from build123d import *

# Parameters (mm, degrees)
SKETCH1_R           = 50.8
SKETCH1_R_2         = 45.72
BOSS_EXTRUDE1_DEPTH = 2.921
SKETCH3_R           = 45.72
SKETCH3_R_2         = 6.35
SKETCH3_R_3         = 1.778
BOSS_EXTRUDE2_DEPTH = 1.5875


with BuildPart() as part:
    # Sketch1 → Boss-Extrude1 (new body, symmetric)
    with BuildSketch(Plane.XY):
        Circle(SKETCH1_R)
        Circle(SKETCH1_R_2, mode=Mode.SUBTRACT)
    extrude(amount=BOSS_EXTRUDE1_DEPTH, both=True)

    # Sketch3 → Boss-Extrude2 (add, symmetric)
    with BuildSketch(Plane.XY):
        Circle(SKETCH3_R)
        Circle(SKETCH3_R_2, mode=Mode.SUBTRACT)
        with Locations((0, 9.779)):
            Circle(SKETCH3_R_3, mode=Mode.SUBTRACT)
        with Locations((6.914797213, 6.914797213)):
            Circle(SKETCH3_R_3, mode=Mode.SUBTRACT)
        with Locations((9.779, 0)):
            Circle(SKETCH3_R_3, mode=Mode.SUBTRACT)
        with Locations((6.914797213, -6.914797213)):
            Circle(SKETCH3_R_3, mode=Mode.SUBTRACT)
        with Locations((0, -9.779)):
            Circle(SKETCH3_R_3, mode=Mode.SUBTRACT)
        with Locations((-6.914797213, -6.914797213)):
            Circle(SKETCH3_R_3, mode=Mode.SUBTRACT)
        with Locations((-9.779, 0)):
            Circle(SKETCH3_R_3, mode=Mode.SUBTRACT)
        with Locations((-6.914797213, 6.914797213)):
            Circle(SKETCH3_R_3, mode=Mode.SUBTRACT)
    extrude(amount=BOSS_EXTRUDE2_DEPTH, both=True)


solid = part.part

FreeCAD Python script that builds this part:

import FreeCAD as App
import Part
import Sketcher

V = App.Vector
Q = App.Units.Quantity

doc = App.newDocument("Part")
body = doc.addObject("PartDesign::Body", "Body")

# Sketch on XY plane
sketch1 = body.newObject("Sketcher::SketchObject", "Sketch")
sketch1.AttachmentSupport = (doc.getObject("XY_Plane"), [""])
sketch1.MapMode = "FlatFace"
sketch1.addGeometry([
    Part.Circle(V(0, 0, 0), V(0, 0, 1), 51),
    Part.Circle(V(0, 0, 0), V(0, 0, 1), 46),
], False)
sketch1.addConstraint([
    Sketcher.Constraint("Coincident", 0, 3, -1, 1),
    Sketcher.Constraint("Coincident", 1, 3, -1, 1),
    Sketcher.Constraint("Diameter", 0, Q("4 in")),
    Sketcher.Constraint("Diameter", 1, Q("3.6 in")),
])
pad1 = body.newObject("PartDesign::Pad", "Pad")
pad1.Profile = sketch1
pad1.Length = Q("0.23 in")
pad1.Midplane = True

# Sketch on XY plane
sketch2 = body.newObject("Sketcher::SketchObject", "Sketch001")
sketch2.AttachmentSupport = (doc.getObject("XY_Plane"), [""])
sketch2.MapMode = "FlatFace"
sketch2.addGeometry([
    Part.Circle(V(0, 0, 0), V(0, 0, 1), 45.7),  # 0
    Part.Circle(V(-6.9, -6.9, 0), V(0, 0, 1), 1.8),  # 1
    Part.Circle(V(0, -9.8, 0), V(0, 0, 1), 1.8),  # 2
    Part.Circle(V(-9.8, 0, 0), V(0, 0, 1), 1.8),  # 3
    Part.Circle(V(0, 0, 0), V(0, 0, 1), 6.3),  # 4
    Part.Circle(V(6.9, -6.9, 0), V(0, 0, 1), 1.8),  # 5
    Part.Circle(V(9.8, 0, 0), V(0, 0, 1), 1.8),  # 6
    Part.Circle(V(-6.9, 6.9, 0), V(0, 0, 1), 1.8),  # 7
    Part.Circle(V(0, 9.8, 0), V(0, 0, 1), 1.8),  # 8
    Part.Circle(V(6.9, 6.9, 0), V(0, 0, 1), 1.8),  # 9
], False)
sketch2.addConstraint([
    Sketcher.Constraint("Coincident", 0, 3, -1, 1),
    Sketcher.Constraint("Coincident", 4, 3, -1, 1),
    Sketcher.Constraint("Equal", 1, 2),
    Sketcher.Constraint("Equal", 2, 3),
    Sketcher.Constraint("Equal", 3, 5),
    Sketcher.Constraint("Equal", 5, 6),
    Sketcher.Constraint("Equal", 6, 7),
    Sketcher.Constraint("Equal", 7, 8),
    Sketcher.Constraint("Equal", 8, 9),
    Sketcher.Constraint("Symmetric", 3, 3, 6, 3, -1, 1),
    Sketcher.Constraint("Symmetric", 5, 3, 7, 3, -1, 1),
    Sketcher.Constraint("Symmetric", 2, 3, 8, 3, -1, 1),
    Sketcher.Constraint("Symmetric", 1, 3, 9, 3, -1, 1),
    Sketcher.Constraint("Symmetric", 1, 3, 5, 3, -2),
    Sketcher.Constraint("PointOnObject", 2, 3, -2),
    Sketcher.Constraint("PointOnObject", 3, 3, -1),
    Sketcher.Constraint("Diameter", 0, Q("3.6 in")),
    Sketcher.Constraint("Diameter", 4, Q("0.5 in")),
    Sketcher.Constraint("Diameter", 1, Q("0.14 in")),
    Sketcher.Constraint("DistanceY", 2, 3, -1, 1, Q("0.385 in")),
    Sketcher.Constraint("DistanceX", 3, 3, -1, 1, Q("0.385 in")),
    Sketcher.Constraint("DistanceX", 1, 3, -1, 1, 6.914797),
    Sketcher.Constraint("DistanceY", 1, 3, -1, 1, 6.914797),
])
pad2 = body.newObject("PartDesign::Pad", "Pad001")
pad2.Profile = sketch2
pad2.Length = Q("0.125 in")
pad2.Midplane = True

doc.recompute()
